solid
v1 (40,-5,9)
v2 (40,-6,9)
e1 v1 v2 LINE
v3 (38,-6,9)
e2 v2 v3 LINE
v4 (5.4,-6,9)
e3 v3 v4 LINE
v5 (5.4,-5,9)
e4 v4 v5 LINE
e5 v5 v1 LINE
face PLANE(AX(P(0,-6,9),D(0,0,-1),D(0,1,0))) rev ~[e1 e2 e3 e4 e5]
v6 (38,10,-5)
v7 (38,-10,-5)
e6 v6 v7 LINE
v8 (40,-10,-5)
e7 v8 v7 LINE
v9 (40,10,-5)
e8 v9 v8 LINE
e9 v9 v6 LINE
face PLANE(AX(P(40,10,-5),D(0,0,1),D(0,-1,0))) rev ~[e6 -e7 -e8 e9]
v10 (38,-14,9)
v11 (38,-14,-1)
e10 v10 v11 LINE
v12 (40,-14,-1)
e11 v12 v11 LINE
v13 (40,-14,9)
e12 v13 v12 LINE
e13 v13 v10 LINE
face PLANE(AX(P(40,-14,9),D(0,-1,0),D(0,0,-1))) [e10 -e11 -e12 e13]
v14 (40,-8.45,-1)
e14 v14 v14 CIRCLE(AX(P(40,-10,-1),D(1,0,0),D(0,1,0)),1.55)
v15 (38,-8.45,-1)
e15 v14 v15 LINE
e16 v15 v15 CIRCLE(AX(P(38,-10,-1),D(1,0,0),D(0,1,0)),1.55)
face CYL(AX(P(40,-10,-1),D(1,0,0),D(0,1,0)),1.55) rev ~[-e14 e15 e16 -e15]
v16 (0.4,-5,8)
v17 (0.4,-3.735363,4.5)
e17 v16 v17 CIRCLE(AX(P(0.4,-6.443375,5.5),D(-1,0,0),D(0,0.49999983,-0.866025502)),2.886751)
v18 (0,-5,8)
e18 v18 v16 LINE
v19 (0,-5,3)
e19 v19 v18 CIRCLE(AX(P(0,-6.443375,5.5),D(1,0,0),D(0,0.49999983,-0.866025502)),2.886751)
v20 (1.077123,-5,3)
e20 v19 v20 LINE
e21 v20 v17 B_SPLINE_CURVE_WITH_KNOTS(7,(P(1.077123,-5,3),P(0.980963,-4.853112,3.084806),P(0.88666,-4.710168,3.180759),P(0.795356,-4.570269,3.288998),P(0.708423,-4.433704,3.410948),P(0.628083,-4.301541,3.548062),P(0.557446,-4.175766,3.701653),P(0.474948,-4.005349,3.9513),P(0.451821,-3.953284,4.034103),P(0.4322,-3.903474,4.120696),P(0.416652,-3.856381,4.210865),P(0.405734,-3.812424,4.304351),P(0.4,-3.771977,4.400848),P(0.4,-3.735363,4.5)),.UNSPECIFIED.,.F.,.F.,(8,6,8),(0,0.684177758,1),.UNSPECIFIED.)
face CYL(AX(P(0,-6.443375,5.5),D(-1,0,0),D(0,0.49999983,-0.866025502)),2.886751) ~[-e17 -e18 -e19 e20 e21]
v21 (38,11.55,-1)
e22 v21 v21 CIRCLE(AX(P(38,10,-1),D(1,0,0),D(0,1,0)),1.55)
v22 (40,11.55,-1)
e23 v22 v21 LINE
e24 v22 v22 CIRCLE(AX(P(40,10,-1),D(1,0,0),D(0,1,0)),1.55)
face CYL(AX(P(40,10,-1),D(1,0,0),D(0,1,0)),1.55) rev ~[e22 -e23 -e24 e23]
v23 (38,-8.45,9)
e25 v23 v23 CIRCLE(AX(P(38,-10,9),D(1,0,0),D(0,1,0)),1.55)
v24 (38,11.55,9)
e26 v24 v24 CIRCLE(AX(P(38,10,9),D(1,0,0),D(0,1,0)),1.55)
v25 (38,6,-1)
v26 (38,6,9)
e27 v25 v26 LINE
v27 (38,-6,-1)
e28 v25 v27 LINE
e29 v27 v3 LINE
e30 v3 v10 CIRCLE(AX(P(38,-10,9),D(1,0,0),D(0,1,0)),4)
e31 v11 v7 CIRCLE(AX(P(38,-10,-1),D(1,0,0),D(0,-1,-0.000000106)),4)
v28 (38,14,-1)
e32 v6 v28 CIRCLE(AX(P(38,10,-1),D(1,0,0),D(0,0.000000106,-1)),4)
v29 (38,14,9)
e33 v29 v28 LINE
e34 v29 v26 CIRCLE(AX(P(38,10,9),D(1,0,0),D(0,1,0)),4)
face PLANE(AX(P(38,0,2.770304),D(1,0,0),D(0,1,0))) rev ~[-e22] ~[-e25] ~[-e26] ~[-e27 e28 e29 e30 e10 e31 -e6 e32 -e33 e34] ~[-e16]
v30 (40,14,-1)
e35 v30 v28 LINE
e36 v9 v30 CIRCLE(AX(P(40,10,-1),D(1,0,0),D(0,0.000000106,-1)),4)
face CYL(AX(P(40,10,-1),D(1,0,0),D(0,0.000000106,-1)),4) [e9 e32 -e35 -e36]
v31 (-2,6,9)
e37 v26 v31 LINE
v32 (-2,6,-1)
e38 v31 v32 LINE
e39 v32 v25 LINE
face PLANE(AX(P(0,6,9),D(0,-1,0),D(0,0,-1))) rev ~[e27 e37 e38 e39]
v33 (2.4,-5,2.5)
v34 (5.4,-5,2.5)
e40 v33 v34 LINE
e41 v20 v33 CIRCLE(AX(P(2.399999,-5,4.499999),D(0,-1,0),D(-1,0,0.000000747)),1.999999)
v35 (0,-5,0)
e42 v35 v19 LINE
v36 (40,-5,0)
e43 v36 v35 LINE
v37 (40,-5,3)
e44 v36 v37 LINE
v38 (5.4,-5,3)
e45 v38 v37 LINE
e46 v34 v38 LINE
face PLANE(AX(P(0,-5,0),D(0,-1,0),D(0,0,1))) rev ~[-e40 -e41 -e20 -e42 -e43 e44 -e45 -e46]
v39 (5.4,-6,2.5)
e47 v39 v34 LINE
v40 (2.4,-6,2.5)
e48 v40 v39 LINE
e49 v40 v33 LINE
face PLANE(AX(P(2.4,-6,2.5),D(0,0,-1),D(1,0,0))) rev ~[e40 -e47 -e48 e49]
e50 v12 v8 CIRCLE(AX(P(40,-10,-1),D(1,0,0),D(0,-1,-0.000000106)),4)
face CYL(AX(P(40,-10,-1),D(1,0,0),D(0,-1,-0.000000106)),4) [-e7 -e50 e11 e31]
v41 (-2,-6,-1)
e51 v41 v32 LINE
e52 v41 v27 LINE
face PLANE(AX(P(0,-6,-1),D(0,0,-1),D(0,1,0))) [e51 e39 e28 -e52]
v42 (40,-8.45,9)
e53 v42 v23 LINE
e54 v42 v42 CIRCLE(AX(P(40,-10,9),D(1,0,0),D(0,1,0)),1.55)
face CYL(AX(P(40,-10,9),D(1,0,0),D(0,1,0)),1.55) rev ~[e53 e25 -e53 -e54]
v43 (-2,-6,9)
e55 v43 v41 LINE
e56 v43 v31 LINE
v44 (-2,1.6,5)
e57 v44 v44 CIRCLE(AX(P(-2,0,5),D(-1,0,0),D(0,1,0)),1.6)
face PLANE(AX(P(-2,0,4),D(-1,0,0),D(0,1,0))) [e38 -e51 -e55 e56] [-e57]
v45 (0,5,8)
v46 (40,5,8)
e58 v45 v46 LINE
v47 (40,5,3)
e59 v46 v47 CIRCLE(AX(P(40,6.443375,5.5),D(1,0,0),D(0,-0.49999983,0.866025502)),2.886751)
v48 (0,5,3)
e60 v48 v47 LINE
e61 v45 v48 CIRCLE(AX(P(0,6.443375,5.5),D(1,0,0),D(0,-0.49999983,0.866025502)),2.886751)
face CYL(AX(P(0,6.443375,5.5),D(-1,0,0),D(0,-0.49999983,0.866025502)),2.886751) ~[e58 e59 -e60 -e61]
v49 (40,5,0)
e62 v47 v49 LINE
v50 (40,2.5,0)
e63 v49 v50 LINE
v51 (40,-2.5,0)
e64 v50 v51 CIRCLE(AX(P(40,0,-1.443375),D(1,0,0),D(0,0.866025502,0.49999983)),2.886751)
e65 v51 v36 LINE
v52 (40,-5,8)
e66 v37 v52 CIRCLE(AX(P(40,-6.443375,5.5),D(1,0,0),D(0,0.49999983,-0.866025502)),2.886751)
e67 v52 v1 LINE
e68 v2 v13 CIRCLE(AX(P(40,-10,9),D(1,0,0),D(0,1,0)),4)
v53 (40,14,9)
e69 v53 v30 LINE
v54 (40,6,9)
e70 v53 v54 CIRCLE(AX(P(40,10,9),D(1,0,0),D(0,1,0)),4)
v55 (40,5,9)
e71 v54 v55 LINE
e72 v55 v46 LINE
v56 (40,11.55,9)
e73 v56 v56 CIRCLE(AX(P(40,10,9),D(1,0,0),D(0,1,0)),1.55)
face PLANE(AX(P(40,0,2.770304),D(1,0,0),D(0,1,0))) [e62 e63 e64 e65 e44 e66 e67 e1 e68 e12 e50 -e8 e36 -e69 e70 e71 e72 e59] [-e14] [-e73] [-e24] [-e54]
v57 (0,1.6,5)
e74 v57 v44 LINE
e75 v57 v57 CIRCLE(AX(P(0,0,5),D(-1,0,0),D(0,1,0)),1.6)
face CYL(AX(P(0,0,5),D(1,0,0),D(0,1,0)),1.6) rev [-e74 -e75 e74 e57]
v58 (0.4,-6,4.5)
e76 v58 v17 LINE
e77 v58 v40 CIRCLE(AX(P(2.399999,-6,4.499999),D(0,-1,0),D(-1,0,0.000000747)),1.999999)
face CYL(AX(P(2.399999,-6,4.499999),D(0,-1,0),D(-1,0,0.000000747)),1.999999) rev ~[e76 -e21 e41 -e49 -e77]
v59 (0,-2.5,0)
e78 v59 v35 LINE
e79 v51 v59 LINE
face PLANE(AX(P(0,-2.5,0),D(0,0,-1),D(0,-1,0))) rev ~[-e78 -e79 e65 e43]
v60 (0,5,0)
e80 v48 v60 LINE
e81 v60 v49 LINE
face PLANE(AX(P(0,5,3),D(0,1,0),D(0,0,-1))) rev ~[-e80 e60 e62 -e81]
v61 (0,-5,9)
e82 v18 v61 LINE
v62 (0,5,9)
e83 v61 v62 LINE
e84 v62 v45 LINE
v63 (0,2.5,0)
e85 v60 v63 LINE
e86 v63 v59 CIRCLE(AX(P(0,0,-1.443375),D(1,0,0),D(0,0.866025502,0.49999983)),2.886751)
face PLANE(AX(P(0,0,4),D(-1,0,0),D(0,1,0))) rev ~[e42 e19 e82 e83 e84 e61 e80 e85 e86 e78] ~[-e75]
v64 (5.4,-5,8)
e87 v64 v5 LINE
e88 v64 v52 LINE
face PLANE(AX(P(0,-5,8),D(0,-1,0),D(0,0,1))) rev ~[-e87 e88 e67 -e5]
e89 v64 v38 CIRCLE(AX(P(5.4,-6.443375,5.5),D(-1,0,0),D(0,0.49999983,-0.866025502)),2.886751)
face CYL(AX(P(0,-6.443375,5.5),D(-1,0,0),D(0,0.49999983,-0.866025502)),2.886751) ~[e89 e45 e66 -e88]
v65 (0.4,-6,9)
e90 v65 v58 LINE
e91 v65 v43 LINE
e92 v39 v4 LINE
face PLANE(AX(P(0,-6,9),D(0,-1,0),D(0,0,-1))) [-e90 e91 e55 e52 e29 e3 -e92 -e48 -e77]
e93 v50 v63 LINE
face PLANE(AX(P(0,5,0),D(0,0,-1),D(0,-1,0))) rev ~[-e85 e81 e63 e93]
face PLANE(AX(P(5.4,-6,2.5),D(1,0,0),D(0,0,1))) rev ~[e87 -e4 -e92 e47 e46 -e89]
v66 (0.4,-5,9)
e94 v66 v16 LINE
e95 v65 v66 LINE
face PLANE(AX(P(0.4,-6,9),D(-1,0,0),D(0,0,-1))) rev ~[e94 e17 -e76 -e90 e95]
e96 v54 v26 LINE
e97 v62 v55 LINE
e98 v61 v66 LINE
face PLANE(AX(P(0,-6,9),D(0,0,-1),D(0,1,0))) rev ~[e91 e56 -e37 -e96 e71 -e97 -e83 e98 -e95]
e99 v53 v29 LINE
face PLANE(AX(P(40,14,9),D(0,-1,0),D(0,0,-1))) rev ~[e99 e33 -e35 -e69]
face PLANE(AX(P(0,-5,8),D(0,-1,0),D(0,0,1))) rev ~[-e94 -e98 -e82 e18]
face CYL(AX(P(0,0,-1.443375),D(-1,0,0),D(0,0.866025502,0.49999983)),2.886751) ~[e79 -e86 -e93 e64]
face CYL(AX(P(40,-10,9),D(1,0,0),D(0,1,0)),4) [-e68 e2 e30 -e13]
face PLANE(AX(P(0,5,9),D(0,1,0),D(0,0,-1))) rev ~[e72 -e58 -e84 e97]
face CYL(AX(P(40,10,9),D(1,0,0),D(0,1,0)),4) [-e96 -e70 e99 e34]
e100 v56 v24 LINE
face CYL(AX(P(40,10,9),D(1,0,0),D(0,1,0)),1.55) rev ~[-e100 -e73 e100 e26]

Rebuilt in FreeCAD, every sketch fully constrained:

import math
import FreeCAD as App
import Part
import Sketcher

V = App.Vector


def add_polygon(sketch, points):
    """Adds a closed chain of lines whose ends are joined by coincident constraints."""
    first, n = sketch.GeometryCount, len(points)
    for a, b in zip(points, points[1:] + points[:1]):
        sketch.addGeometry(Part.LineSegment(App.Vector(*a, 0), App.Vector(*b, 0)), False)
    for i in range(n):
        sketch.addConstraint(Sketcher.Constraint("Coincident", first + i, 2, first + (i + 1) % n, 1))

doc = App.newDocument("Part")
body = doc.addObject("PartDesign::Body", "Body")

# Sketch on YZ plane
sketch1 = body.newObject("Sketcher::SketchObject", "Sketch")
sketch1.AttachmentSupport = (doc.getObject("YZ_Plane"), [""])
sketch1.MapMode = "FlatFace"
sketch1.addGeometry([
    Part.LineSegment(V(-5, 8, 0), V(-5, 9, 0)),  # 0
    Part.LineSegment(V(-5, 9, 0), V(-6, 9, 0)),  # 1
    Part.LineSegment(V(-6, 9, 0), V(-6, -1, 0)),  # 2
    Part.LineSegment(V(-6, -1, 0), V(6, -1, 0)),  # 3
    Part.LineSegment(V(6, -1, 0), V(6, 9, 0)),  # 4
    Part.LineSegment(V(6, 9, 0), V(5, 9, 0)),  # 5
    Part.LineSegment(V(5, 9, 0), V(5, 8, 0)),  # 6
    Part.ArcOfCircle(Part.Circle(V(6.4, 5.5, 0), V(0, 0, 1), 2.9), math.radians(120), math.radians(240)),  # 7
    Part.LineSegment(V(5, 3, 0), V(5, 0, 0)),  # 8
    Part.LineSegment(V(5, 0, 0), V(2.5, 0, 0)),  # 9
    Part.ArcOfCircle(Part.Circle(V(0, -1.4, 0), V(0, 0, 1), 2.9), math.radians(30), math.radians(150)),  # 10
    Part.LineSegment(V(-2.5, 0, 0), V(-5, 0, 0)),  # 11
    Part.LineSegment(V(-5, 0, 0), V(-5, 3, 0)),  # 12
    Part.ArcOfCircle(Part.Circle(V(-6.4, 5.5, 0), V(0, 0, 1), 2.9), math.radians(-60), math.radians(60)),  # 13
], False)
sketch1.addConstraint([
    Sketcher.Constraint("Coincident", 0, 2, 1, 1),
    Sketcher.Constraint("Coincident", 1, 2, 2, 1),
    Sketcher.Constraint("Coincident", 2, 2, 3, 1),
    Sketcher.Constraint("Coincident", 3, 2, 4, 1),
    Sketcher.Constraint("Coincident", 4, 2, 5, 1),
    Sketcher.Constraint("Coincident", 5, 2, 6, 1),
    Sketcher.Constraint("Coincident", 6, 2, 7, 1),
    Sketcher.Constraint("Coincident", 7, 2, 8, 1),
    Sketcher.Constraint("Coincident", 8, 2, 9, 1),
    Sketcher.Constraint("Coincident", 9, 2, 10, 1),
    Sketcher.Constraint("Coincident", 10, 2, 11, 1),
    Sketcher.Constraint("Coincident", 11, 2, 12, 1),
    Sketcher.Constraint("Coincident", 12, 2, 13, 1),
    Sketcher.Constraint("Coincident", 13, 2, 0, 1),
    Sketcher.Constraint("Vertical", 0),
    Sketcher.Constraint("Horizontal", 1),
    Sketcher.Constraint("Vertical", 2),
    Sketcher.Constraint("Horizontal", 3),
    Sketcher.Constraint("Vertical", 4),
    Sketcher.Constraint("Horizontal", 5),
    Sketcher.Constraint("Vertical", 6),
    Sketcher.Constraint("Vertical", 8),
    Sketcher.Constraint("Horizontal", 9),
    Sketcher.Constraint("Horizontal", 11),
    Sketcher.Constraint("Vertical", 12),
    Sketcher.Constraint("Equal", 7, 10),
    Sketcher.Constraint("Equal", 10, 13),
    Sketcher.Constraint("Symmetric", 9, 2, 10, 2, -1, 1),
    Sketcher.Constraint("Symmetric", 7, 3, 13, 3, -2),
    Sketcher.Constraint("Symmetric", 1, 2, 4, 2, -2),
    Sketcher.Constraint("Symmetric", 8, 2, 11, 2, -2),
    Sketcher.Constraint("Horizontal", 6, 2, 13, 2),
    Sketcher.Constraint("Vertical", 6, 2, 7, 2),
    Sketcher.Constraint("Equal", 5, 0),
    Sketcher.Constraint("DistanceX", 1, 2, 1, 1, 1.0),
    Sketcher.Constraint("DistanceX", 3, 1, 3, 2, 12.0),
    Sketcher.Constraint("DistanceY", 2, 2, 2, 1, 10.0),
    Sketcher.Constraint("DistanceY", 8, 2, 8, 1, 3.0),
    Sketcher.Constraint("DistanceX", 9, 2, 9, 1, 2.5),
    Sketcher.Constraint("DistanceY", -1, 1, 0, 2, 9.0),
    Sketcher.Constraint("Radius", 7, 2.886751),
])
pad1 = body.newObject("PartDesign::Pad", "Pad")
pad1.Profile = sketch1
pad1.Length = 40

# Sketch on YZ plane
sketch2 = body.newObject("Sketcher::SketchObject", "Sketch001")
sketch2.AttachmentSupport = (doc.getObject("YZ_Plane"), [""])
sketch2.MapMode = "FlatFace"
add_polygon(sketch2, [(-6, -1), (-6, 9), (6, 9), (6, -1)])  # lines 0-3
sketch2.addGeometry(Part.Circle(V(0, 5, 0), V(0, 0, 1), 1.6), False)  # 4
sketch2.addConstraint([
    Sketcher.Constraint("Vertical", 0),
    Sketcher.Constraint("Horizontal", 1),
    Sketcher.Constraint("Vertical", 2),
    Sketcher.Constraint("Horizontal", 3),
    Sketcher.Constraint("PointOnObject", 4, 3, -2),
    Sketcher.Constraint("Diameter", 4, 3.2),
    Sketcher.Constraint("DistanceX", 1, 1, 1, 2, 12.0),
    Sketcher.Constraint("DistanceY", 0, 1, 0, 2, 10.0),
    Sketcher.Constraint("DistanceY", -1, 1, 4, 3, 5.0),
    Sketcher.Constraint("DistanceX", 0, 2, -1, 1, 6.0),
    Sketcher.Constraint("DistanceY", -1, 1, 0, 2, 9.0),
])
pad2 = body.newObject("PartDesign::Pad", "Pad001")
pad2.Profile = sketch2
pad2.Length = 2
pad2.Reversed = True

# Sketch on YZ plane
sketch3 = body.newObject("Sketcher::SketchObject", "Sketch002")
sketch3.AttachmentSupport = (doc.getObject("YZ_Plane"), [""])
sketch3.MapMode = "FlatFace"
sketch3.AttachmentOffset = App.Placement(V(0, 0, 40), App.Rotation())
sketch3.addGeometry([
    Part.ArcOfCircle(Part.Circle(V(-10, 9, 0), V(0, 0, 1), 4), math.radians(0), math.radians(180)),  # 0
    Part.LineSegment(V(-14, 9, 0), V(-14, -1, 0)),  # 1
    Part.ArcOfCircle(Part.Circle(V(-10, -1, 0), V(0, 0, 1), 4), math.radians(-180), math.radians(-90)),  # 2
    Part.LineSegment(V(-10, -5, 0), V(10, -5, 0)),  # 3
    Part.ArcOfCircle(Part.Circle(V(10, -1, 0), V(0, 0, 1), 4), math.radians(-90), math.radians(0)),  # 4
    Part.LineSegment(V(14, -1, 0), V(14, 9, 0)),  # 5
    Part.ArcOfCircle(Part.Circle(V(10, 9, 0), V(0, 0, 1), 4), math.radians(0), math.radians(180)),  # 6
    Part.LineSegment(V(6, 9, 0), V(5, 0, 0)),  # 7
    Part.LineSegment(V(5, 0, 0), V(-5, 0, 0)),  # 8
    Part.LineSegment(V(-5, 0, 0), V(-6, 9, 0)),  # 9
    Part.Circle(V(-10, -1, 0), V(0, 0, 1), 1.6),  # 10
    Part.Circle(V(10, -1, 0), V(0, 0, 1), 1.6),  # 11
    Part.Circle(V(-10, 9, 0), V(0, 0, 1), 1.6),  # 12
    Part.Circle(V(10, 9, 0), V(0, 0, 1), 1.6),  # 13
], False)
sketch3.addConstraint([
    Sketcher.Constraint("Tangent", 0, 2, 1, 1),
    Sketcher.Constraint("Tangent", 1, 2, 2, 1),
    Sketcher.Constraint("Tangent", 2, 2, 3, 1),
    Sketcher.Constraint("Tangent", 3, 2, 4, 1),
    Sketcher.Constraint("Tangent", 4, 2, 5, 1),
    Sketcher.Constraint("Tangent", 5, 2, 6, 1),
    Sketcher.Constraint("Coincident", 6, 2, 7, 1),
    Sketcher.Constraint("Coincident", 7, 2, 8, 1),
    Sketcher.Constraint("Coincident", 8, 2, 9, 1),
    Sketcher.Constraint("Coincident", 9, 2, 0, 1),
    Sketcher.Constraint("Vertical", 1),
    Sketcher.Constraint("Horizontal", 3),
    Sketcher.Constraint("Vertical", 5),
    Sketcher.Constraint("Horizontal", 8),
    Sketcher.Constraint("Coincident", 10, 3, 2, 3),
    Sketcher.Constraint("Coincident", 11, 3, 4, 3),
    Sketcher.Constraint("Coincident", 12, 3, 0, 3),
    Sketcher.Constraint("Coincident", 13, 3, 6, 3),
    Sketcher.Constraint("Equal", 0, 2),
    Sketcher.Constraint("Equal", 2, 4),
    Sketcher.Constraint("Equal", 4, 6),
    Sketcher.Constraint("Equal", 10, 11),
    Sketcher.Constraint("Equal", 11, 12),
    Sketcher.Constraint("Equal", 12, 13),
    Sketcher.Constraint("Symmetric", 7, 2, 8, 2, -1, 1),
    Sketcher.Constraint("Symmetric", 0, 3, 6, 3, -2),
    Sketcher.Constraint("Horizontal", 5, 2, 6, 2),
    Sketcher.Constraint("Horizontal", 6, 2, 9, 2),
    Sketcher.Constraint("Equal", 8, 1),
    Sketcher.Constraint("Radius", 0, 4.0),
    Sketcher.Constraint("Diameter", 10, 3.1),
    Sketcher.Constraint("DistanceX", 3, 1, 3, 2, 20.0),
    Sketcher.Constraint("DistanceX", 8, 2, 8, 1, 10.0),
    Sketcher.Constraint("DistanceY", -1, 1, 0, 3, 9.0),
])
pad3 = body.newObject("PartDesign::Pad", "Pad002")
pad3.Profile = sketch3
pad3.Length = 2
pad3.Reversed = True

# Sketch on XZ plane
sketch4 = body.newObject("Sketcher::SketchObject", "Sketch003")
sketch4.AttachmentSupport = (doc.getObject("XZ_Plane"), [""])
sketch4.MapMode = "FlatFace"
sketch4.AttachmentOffset = App.Placement(V(0, 0, 6), App.Rotation())
sketch4.addGeometry([
    Part.LineSegment(V(0.4, 9, 0), V(0.4, 4.5, 0)),  # 0
    Part.ArcOfCircle(Part.Circle(V(2.4, 4.5, 0), V(0, 0, 1), 2), math.radians(180), math.radians(270)),  # 1
    Part.LineSegment(V(2.4, 2.5, 0), V(5.4, 2.5, 0)),  # 2
    Part.LineSegment(V(5.4, 2.5, 0), V(5.4, 9, 0)),  # 3
    Part.LineSegment(V(5.4, 9, 0), V(0.4, 9, 0)),  # 4
], False)
sketch4.addConstraint([
    Sketcher.Constraint("Tangent", 0, 2, 1, 1),
    Sketcher.Constraint("Tangent", 1, 2, 2, 1),
    Sketcher.Constraint("Coincident", 2, 2, 3, 1),
    Sketcher.Constraint("Coincident", 3, 2, 4, 1),
    Sketcher.Constraint("Coincident", 4, 2, 0, 1),
    Sketcher.Constraint("Vertical", 0),
    Sketcher.Constraint("Horizontal", 2),
    Sketcher.Constraint("Vertical", 3),
    Sketcher.Constraint("Horizontal", 4),
    Sketcher.Constraint("Radius", 1, 1.999999),
    Sketcher.Constraint("DistanceX", 2, 1, 2, 2, 3.0),
    Sketcher.Constraint("DistanceY", 0, 2, 0, 1, 4.5),
    Sketcher.Constraint("DistanceY", -1, 1, 3, 2, 9.0),
    Sketcher.Constraint("DistanceX", -1, 1, 1, 3, 2.399999),
])
pocket1 = body.newObject("PartDesign::Pocket", "Pocket")
pocket1.Profile = sketch4
pocket1.Length = 5

doc.recompute()
